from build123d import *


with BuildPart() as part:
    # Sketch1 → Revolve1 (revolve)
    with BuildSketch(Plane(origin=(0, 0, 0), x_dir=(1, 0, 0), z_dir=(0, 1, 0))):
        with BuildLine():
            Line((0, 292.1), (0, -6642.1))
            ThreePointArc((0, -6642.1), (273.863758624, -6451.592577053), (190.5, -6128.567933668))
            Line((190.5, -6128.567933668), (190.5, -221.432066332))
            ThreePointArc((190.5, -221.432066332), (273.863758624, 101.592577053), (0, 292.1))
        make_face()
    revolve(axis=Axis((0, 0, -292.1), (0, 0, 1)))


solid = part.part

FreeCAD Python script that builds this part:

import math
import FreeCAD as App
import Part
import Sketcher

V = App.Vector
Q = App.Units.Quantity

doc = App.newDocument("Part")
body = doc.addObject("PartDesign::Body", "Body")

sketch1 = doc.addObject("Sketcher::SketchObject", "Sketch")
body.addObject(sketch1)
sketch1.AttachmentSupport = (doc.XZ_Plane, [""])
sketch1.MapMode = "FlatFace"
sketch1.addGeometry(Part.LineSegment(V(0, -292, 0), V(0, 6642, 0)), False)
sketch1.addGeometry(Part.ArcOfCircle(Part.Circle(V(0, 6350, 0), V(0, 0, 1), 292), math.radians(-49), math.radians(90)), False)
sketch1.addGeometry(Part.LineSegment(V(190, 6129, 0), V(190, 221, 0)), False)
sketch1.addGeometry(Part.ArcOfCircle(Part.Circle(V(0, 0, 0), V(0, 0, 1), 292), math.radians(-90), math.radians(49)), False)
sketch1.addConstraint(Sketcher.Constraint("Coincident", 0, 2, 1, 2))
sketch1.addConstraint(Sketcher.Constraint("Coincident", 1, 1, 2, 1))
sketch1.addConstraint(Sketcher.Constraint("Coincident", 2, 2, 3, 2))
sketch1.addConstraint(Sketcher.Constraint("Coincident", 3, 1, 0, 1))
sketch1.addConstraint(Sketcher.Constraint("Vertical", 0))
sketch1.addConstraint(Sketcher.Constraint("Vertical", 2))
sketch1.addConstraint(Sketcher.Constraint("Coincident", 3, 3, -1, 1))
sketch1.addConstraint(Sketcher.Constraint("Equal", 1, 3))
sketch1.addConstraint(Sketcher.Constraint("PointOnObject", 1, 3, -2))
sketch1.addConstraint(Sketcher.Constraint("PointOnObject", 0, 2, -2))
sketch1.addConstraint(Sketcher.Constraint("Radius", 1, Q("11.5 in")))
sketch1.addConstraint(Sketcher.Constraint("DistanceY", 0, 1, 0, 2, Q("273 in")))
sketch1.addConstraint(Sketcher.Constraint("DistanceX", -1, 1, 1, 1, Q("7.5 in")))
revolution = doc.addObject("PartDesign::Revolution", "Revolution")
body.addObject(revolution)
revolution.Profile = sketch1
revolution.ReferenceAxis = (sketch1, ["V_Axis"])
revolution.Angle = 360

doc.recompute()
